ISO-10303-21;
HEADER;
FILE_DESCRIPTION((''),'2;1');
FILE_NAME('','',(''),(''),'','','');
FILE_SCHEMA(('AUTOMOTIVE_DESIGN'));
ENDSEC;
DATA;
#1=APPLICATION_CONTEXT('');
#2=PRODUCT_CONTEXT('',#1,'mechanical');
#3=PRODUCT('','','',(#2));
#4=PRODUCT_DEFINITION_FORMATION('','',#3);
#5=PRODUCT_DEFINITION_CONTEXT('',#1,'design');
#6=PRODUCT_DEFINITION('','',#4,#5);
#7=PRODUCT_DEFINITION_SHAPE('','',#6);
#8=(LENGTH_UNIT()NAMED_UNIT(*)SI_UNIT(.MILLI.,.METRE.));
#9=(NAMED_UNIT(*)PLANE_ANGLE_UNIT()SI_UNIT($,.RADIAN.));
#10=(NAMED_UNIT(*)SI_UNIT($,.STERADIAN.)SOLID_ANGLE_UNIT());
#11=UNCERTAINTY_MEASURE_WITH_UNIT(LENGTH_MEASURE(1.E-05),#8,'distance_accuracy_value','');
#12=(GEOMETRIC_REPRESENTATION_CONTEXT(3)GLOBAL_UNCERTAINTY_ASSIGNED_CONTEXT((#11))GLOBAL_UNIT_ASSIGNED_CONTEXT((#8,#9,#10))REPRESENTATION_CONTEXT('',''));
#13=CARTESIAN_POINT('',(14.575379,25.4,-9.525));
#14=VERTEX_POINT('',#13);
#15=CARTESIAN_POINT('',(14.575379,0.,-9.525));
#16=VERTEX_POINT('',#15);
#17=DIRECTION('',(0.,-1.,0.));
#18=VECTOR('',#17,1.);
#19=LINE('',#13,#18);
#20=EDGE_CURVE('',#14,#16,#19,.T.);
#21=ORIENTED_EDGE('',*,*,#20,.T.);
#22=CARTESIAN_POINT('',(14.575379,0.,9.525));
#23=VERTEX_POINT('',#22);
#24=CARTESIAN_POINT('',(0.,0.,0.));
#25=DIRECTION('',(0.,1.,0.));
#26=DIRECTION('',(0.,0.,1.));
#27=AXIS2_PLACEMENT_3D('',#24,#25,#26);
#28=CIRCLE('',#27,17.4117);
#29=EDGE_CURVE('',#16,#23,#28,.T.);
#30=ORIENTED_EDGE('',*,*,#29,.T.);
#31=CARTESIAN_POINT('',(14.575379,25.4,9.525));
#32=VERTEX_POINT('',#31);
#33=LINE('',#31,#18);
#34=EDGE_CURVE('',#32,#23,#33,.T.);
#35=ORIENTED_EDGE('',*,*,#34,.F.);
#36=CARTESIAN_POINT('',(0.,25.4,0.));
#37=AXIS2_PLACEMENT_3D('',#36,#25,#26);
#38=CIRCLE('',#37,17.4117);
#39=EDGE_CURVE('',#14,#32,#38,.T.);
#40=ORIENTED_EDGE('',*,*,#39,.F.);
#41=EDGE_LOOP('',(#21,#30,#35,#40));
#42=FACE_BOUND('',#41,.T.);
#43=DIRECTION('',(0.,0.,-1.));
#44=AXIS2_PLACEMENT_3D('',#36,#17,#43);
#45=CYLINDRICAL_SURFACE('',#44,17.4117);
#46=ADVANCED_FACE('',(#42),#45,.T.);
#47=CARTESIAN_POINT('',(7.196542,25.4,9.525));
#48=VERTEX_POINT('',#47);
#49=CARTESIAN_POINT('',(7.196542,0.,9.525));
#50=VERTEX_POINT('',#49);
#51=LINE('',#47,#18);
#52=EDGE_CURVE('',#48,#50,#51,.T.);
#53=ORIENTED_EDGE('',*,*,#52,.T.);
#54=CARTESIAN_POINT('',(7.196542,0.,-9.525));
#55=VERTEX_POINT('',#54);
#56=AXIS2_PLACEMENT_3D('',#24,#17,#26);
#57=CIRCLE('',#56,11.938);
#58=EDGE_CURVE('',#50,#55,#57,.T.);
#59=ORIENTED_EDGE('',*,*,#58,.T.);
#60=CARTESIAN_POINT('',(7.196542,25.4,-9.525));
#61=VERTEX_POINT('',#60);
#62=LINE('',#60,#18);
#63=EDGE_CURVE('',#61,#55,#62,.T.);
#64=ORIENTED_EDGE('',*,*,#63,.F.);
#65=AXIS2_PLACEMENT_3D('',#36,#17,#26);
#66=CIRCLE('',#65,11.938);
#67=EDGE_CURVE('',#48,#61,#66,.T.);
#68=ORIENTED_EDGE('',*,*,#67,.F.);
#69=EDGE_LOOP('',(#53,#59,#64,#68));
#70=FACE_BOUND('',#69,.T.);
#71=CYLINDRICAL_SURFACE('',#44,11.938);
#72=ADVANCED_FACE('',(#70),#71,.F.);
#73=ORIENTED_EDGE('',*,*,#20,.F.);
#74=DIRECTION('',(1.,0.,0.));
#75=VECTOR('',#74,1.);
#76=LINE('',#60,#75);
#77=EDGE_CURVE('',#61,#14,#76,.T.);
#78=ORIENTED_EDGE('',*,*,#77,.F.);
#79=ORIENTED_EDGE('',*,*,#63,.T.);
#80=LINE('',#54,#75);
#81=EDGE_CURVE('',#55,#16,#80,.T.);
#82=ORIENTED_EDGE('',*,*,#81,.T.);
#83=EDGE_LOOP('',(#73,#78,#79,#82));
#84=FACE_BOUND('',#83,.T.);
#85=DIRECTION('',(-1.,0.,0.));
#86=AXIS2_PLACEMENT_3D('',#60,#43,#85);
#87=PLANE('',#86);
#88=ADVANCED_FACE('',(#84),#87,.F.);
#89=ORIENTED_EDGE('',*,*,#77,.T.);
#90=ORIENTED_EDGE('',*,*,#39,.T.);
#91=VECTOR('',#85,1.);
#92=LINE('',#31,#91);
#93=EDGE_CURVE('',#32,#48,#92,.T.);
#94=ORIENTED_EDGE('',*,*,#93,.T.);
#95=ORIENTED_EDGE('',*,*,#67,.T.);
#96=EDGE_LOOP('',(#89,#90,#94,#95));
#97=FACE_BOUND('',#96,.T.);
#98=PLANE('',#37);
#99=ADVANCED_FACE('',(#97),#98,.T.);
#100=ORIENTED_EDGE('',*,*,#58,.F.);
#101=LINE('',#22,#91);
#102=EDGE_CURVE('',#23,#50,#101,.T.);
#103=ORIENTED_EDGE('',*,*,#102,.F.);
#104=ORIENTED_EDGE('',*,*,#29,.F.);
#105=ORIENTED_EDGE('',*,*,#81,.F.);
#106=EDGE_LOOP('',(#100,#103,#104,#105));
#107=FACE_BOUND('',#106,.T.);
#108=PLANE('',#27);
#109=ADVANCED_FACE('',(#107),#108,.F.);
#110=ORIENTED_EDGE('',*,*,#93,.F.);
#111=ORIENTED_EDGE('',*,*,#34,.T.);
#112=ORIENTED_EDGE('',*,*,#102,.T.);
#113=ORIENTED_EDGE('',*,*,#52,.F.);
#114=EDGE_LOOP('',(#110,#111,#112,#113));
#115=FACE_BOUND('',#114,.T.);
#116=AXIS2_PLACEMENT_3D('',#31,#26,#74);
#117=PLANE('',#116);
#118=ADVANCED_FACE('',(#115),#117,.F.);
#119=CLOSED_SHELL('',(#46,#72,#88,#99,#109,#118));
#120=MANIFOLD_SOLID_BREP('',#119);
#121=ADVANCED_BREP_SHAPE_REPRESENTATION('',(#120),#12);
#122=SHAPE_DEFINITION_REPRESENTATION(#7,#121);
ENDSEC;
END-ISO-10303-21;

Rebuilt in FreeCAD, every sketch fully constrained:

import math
import FreeCAD as App
import Part
import Sketcher
Q = App.Units.Quantity

doc = App.newDocument("Part")
body = doc.addObject("PartDesign::Body", "Body")

# Sketch on XZ plane
sketch1 = body.newObject("Sketcher::SketchObject", "Sketch")
sketch1.AttachmentSupport = (doc.getObject("XZ_Plane"), [""])
sketch1.MapMode = "FlatFace"
sketch1.addGeometry([
    Part.LineSegment(App.Vector(7, -10, 0), App.Vector(15, -10, 0)),
    Part.ArcOfCircle(Part.Circle(App.Vector(0, 0, 0), App.Vector(0, 0, 1), 17), math.radians(33), math.radians(327)),
    Part.LineSegment(App.Vector(15, 10, 0), App.Vector(7, 10, 0)),
    Part.ArcOfCircle(Part.Circle(App.Vector(0, 0, 0), App.Vector(0, 0, 1), 12), math.radians(53), math.radians(307)),
], False)
sketch1.addConstraint([
    Sketcher.Constraint("Coincident", 0, 2, 1, 2),
    Sketcher.Constraint("Coincident", 1, 1, 2, 1),
    Sketcher.Constraint("Coincident", 2, 2, 3, 1),
    Sketcher.Constraint("Coincident", 3, 2, 0, 1),
    Sketcher.Constraint("Horizontal", 0),
    Sketcher.Constraint("Horizontal", 2),
    Sketcher.Constraint("Coincident", 1, 3, -1, 1),
    Sketcher.Constraint("Coincident", 3, 3, -1, 1),
    Sketcher.Constraint("Vertical", 0, 2, 1, 1),
    Sketcher.Constraint("Radius", 3, Q("0.47 in")),
    Sketcher.Constraint("Radius", 1, Q("0.6855 in")),
    Sketcher.Constraint("DistanceY", 0, 2, 1, 1, Q("0.75 in")),
])
pad1 = body.newObject("PartDesign::Pad", "Pad")
pad1.Profile = sketch1
pad1.Length = Q("1 in")
pad1.Reversed = True

doc.recompute()
